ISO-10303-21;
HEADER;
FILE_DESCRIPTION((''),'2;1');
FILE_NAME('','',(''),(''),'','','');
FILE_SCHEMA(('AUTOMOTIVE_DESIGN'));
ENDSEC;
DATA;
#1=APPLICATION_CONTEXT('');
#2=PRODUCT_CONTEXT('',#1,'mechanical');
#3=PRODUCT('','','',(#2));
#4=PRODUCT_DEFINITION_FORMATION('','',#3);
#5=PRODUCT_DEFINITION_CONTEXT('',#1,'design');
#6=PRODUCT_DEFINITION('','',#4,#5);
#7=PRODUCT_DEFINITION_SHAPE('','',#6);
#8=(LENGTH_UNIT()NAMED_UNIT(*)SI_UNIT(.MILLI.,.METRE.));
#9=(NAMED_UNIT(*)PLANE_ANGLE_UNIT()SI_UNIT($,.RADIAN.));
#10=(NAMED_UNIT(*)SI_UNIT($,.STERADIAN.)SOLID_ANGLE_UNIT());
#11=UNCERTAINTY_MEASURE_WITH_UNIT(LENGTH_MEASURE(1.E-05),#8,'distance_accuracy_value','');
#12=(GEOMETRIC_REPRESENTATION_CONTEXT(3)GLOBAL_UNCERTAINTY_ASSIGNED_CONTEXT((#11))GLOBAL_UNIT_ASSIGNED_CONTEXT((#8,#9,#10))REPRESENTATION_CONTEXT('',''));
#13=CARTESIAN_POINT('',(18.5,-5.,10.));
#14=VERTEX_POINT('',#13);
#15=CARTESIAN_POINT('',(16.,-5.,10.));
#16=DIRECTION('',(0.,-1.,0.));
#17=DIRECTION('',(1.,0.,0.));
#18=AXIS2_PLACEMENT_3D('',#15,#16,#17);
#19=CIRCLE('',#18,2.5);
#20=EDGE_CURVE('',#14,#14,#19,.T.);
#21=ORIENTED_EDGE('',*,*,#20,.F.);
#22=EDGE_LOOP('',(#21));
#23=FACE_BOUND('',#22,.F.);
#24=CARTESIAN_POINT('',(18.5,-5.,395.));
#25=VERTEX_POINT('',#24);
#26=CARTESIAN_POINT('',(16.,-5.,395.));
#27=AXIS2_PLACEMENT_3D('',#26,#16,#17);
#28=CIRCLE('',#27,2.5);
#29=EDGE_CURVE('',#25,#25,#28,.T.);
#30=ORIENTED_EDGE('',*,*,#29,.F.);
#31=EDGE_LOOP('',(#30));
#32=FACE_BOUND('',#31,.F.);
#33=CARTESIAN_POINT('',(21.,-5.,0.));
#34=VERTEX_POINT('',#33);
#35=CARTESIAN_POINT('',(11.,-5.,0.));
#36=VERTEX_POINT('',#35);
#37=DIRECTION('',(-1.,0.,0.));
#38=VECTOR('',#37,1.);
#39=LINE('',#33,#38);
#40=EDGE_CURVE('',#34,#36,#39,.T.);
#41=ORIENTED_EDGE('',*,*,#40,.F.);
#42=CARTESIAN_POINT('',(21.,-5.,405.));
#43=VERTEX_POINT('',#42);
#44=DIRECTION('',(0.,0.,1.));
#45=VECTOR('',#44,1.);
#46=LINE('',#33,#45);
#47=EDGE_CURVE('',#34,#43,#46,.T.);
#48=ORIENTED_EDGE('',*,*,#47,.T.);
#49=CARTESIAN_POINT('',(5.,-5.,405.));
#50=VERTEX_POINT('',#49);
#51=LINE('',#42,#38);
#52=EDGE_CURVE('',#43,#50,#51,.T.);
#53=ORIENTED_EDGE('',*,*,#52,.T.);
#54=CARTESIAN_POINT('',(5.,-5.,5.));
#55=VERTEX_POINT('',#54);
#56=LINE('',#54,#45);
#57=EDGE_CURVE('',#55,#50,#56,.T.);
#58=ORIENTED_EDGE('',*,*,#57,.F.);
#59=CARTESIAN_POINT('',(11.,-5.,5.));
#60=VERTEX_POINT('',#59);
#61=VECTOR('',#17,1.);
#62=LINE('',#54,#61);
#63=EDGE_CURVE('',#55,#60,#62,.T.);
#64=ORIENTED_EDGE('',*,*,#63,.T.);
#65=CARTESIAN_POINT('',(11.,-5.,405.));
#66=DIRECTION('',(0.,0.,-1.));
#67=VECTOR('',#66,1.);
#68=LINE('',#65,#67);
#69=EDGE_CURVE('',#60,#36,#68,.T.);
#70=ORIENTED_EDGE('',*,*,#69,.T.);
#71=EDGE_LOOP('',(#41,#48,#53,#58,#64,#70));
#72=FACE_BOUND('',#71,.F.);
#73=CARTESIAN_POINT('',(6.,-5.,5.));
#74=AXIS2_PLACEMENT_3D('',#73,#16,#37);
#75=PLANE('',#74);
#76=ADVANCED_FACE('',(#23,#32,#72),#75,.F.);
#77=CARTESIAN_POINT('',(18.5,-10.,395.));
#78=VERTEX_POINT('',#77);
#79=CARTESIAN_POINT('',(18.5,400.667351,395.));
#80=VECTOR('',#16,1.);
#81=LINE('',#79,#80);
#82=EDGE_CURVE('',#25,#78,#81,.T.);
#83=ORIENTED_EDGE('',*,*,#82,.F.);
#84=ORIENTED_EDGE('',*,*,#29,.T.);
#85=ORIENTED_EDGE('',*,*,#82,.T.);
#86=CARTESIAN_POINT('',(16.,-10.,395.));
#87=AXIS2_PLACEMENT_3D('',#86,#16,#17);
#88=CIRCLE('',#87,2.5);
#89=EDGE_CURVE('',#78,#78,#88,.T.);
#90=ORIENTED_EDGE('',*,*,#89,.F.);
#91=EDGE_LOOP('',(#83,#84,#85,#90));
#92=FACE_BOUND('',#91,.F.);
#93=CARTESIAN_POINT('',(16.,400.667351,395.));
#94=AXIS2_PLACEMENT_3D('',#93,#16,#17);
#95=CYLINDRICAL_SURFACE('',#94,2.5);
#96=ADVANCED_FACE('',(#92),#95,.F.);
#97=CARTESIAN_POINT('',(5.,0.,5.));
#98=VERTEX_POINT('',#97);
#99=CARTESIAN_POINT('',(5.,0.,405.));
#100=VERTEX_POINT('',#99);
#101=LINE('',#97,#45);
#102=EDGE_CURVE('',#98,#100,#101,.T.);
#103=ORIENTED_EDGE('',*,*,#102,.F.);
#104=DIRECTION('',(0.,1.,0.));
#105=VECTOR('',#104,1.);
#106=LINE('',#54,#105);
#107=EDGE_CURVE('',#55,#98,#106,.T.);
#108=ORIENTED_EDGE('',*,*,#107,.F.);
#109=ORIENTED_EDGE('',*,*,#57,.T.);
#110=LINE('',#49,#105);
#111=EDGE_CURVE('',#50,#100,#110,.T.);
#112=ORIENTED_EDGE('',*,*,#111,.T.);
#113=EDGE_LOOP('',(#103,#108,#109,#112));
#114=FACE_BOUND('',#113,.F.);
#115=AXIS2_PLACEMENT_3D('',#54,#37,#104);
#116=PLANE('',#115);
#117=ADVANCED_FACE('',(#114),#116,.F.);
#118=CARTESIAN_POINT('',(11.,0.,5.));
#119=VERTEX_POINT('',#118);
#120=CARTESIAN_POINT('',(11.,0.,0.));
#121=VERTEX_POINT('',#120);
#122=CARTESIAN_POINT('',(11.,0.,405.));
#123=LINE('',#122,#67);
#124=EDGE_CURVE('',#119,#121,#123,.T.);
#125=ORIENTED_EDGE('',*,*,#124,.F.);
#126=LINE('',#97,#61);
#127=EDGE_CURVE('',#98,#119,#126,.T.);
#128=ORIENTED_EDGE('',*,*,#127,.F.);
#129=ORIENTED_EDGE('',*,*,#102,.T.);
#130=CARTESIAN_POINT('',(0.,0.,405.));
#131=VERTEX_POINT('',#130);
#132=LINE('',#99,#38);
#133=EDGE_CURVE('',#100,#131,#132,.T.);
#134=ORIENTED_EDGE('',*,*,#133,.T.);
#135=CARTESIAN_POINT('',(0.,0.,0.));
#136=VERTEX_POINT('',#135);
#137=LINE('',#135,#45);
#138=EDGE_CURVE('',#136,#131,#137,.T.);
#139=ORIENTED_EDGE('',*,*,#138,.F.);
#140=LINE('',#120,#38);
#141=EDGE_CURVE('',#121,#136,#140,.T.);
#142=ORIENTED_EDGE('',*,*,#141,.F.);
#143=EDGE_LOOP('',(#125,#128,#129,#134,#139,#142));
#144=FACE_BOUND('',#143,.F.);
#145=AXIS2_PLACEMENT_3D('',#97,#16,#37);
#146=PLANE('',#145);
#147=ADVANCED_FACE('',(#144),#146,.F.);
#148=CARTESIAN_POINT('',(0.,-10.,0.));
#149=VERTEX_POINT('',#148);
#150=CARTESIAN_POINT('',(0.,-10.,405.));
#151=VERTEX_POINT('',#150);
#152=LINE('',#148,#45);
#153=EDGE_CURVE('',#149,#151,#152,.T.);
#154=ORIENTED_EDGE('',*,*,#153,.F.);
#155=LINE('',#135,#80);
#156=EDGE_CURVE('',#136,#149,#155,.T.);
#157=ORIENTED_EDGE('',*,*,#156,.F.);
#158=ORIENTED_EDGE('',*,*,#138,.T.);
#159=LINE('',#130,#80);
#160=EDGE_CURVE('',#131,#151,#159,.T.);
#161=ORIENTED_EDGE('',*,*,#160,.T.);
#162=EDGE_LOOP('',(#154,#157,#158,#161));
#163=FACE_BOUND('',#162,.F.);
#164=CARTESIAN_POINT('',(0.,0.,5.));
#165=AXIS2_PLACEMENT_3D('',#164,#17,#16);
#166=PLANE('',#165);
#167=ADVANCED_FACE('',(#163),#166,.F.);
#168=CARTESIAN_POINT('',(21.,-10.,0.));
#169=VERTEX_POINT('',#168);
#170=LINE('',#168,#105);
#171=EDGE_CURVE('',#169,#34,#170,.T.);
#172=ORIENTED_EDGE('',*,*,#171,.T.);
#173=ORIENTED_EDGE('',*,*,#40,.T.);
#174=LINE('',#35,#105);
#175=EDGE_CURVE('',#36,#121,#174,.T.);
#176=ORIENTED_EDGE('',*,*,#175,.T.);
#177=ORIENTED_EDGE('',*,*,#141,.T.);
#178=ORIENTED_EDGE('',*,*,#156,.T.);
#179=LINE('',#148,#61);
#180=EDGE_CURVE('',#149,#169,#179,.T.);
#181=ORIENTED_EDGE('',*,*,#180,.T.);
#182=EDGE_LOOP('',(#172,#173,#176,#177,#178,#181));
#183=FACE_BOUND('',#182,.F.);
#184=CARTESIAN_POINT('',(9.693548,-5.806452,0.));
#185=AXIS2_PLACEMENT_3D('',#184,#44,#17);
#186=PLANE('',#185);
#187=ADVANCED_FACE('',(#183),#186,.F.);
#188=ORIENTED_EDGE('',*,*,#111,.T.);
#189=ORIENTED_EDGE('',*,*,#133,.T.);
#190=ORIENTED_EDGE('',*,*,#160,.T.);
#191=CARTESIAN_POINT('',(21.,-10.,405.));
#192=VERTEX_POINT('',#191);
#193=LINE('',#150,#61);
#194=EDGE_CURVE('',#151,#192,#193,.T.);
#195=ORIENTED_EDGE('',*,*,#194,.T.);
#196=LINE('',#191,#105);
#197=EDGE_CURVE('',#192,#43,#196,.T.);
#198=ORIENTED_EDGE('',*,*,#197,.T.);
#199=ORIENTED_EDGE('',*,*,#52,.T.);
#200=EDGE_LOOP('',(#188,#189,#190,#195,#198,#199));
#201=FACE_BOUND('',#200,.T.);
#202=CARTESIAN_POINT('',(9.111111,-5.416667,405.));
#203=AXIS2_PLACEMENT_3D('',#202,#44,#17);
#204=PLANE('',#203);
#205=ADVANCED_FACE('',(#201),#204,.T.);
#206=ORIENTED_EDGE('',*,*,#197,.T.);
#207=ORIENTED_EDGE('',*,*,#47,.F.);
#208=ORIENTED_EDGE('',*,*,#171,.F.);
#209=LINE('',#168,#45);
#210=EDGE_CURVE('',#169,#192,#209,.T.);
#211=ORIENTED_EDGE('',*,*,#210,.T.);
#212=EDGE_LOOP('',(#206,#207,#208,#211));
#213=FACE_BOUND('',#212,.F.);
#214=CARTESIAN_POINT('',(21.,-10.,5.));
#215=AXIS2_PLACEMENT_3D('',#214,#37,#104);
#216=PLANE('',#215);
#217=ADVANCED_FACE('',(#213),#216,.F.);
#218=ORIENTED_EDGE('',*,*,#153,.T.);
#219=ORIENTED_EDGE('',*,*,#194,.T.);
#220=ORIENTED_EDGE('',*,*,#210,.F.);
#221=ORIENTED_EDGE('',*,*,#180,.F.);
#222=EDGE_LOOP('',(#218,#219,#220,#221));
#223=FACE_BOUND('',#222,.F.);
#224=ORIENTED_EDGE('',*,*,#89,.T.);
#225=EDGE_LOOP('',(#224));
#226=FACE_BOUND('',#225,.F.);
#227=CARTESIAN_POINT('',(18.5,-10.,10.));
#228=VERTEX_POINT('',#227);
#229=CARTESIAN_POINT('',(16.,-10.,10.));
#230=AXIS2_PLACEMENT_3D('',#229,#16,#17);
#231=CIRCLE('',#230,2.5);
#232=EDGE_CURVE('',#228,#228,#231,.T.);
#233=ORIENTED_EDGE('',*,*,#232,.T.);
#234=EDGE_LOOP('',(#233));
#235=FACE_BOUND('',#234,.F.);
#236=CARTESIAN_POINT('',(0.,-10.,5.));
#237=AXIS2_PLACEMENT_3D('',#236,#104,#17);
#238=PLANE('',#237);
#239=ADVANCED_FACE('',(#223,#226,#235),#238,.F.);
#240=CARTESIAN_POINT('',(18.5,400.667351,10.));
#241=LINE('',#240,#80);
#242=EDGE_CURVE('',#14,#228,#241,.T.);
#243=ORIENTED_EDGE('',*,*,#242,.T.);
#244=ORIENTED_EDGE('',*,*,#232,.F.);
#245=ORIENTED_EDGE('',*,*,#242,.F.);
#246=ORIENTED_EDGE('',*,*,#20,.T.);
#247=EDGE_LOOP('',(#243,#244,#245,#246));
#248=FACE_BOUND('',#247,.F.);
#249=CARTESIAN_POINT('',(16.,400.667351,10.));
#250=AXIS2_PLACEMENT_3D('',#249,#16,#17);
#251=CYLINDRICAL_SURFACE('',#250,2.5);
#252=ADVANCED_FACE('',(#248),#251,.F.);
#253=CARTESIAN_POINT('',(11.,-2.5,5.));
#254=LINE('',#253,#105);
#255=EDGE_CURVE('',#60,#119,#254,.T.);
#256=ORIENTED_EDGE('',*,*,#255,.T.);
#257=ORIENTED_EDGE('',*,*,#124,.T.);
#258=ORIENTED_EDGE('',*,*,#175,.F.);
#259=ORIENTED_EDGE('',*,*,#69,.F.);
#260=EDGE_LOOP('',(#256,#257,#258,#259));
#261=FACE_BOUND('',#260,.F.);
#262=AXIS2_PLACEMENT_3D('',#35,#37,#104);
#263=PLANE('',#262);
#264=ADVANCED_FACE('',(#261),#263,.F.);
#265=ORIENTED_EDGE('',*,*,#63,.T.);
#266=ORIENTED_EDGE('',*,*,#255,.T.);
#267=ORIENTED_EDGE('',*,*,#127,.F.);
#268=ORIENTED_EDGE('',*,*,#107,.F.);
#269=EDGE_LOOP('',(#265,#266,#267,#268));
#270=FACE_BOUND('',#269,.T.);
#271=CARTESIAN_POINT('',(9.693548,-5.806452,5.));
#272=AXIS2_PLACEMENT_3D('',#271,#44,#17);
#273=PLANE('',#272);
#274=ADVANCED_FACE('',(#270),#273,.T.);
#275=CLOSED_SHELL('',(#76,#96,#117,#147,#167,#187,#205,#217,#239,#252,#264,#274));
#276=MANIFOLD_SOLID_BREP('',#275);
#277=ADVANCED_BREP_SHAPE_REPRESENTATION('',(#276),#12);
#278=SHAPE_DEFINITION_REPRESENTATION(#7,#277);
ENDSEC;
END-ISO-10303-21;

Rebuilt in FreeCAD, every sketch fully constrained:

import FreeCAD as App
import Part
import Sketcher


def add_polygon(sketch, points):
    """Adds a closed chain of lines whose ends are joined by coincident constraints."""
    first, n = sketch.GeometryCount, len(points)
    for a, b in zip(points, points[1:] + points[:1]):
        sketch.addGeometry(Part.LineSegment(App.Vector(*a, 0), App.Vector(*b, 0)), False)
    for i in range(n):
        sketch.addConstraint(Sketcher.Constraint("Coincident", first + i, 2, first + (i + 1) % n, 1))

doc = App.newDocument("Part")
params = doc.addObject("Spreadsheet::Sheet", "Params")
for row, (alias, value) in enumerate([
    ("sketch1_width", "21 mm"),
    ("sketch1_width2", "10 mm"),
    ("pad1_length", "5 mm"),
    ("sketch2_width", "5 mm"),
    ("sketch2_width2", "21 mm"),
    ("pad2_length", "400 mm"),
    ("sketch3_diameter", "5 mm"),
    ("hole_diameter", "5 mm"),
    ("sketch4_diameter", "5 mm"),
    ("hole2_diameter", "5 mm"),
    ("sketch5_width", "5 mm"),
    ("pocket1_length", "400 mm"),
], start=1):
    params.set(f"A{row}", alias)
    params.set(f"B{row}", "=" + value)
    params.setAlias(f"B{row}", alias)

body = doc.addObject("PartDesign::Body", "Body")

sketch1 = doc.addObject("Sketcher::SketchObject", "Sketch")
body.addObject(sketch1)
sketch1.AttachmentSupport = (doc.XY_Plane, [""])
sketch1.MapMode = "FlatFace"
add_polygon(sketch1, [(0, 0), (0, -10), (21, -10), (21, -5), (11, -5), (11, 0)])
sketch1.addConstraint(Sketcher.Constraint("Vertical", 0))
sketch1.addConstraint(Sketcher.Constraint("Horizontal", 1))
sketch1.addConstraint(Sketcher.Constraint("Vertical", 2))
sketch1.addConstraint(Sketcher.Constraint("Horizontal", 3))
sketch1.addConstraint(Sketcher.Constraint("Vertical", 4))
sketch1.addConstraint(Sketcher.Constraint("Horizontal", 5))
sketch1.addConstraint(Sketcher.Constraint("Coincident", 5, 2, -1, 1))
sketch1.addConstraint(Sketcher.Constraint("Equal", 3, 0))
sketch1.addConstraint(Sketcher.Constraint("Equal", 2, 4))
sketch1.addConstraint(Sketcher.Constraint("DistanceX", 1, 1, 1, 2, 21.0))
sketch1.addConstraint(Sketcher.Constraint("DistanceX", 3, 2, 3, 1, 10.0))
sketch1.setExpression("Constraints[15]", "Params.sketch1_width")
sketch1.setExpression("Constraints[16]", "Params.sketch1_width2")
pad1 = doc.addObject("PartDesign::Pad", "Pad")
body.addObject(pad1)
pad1.Profile = sketch1
pad1.setExpression("Length", "Params.pad1_length")

sketch2 = doc.addObject("Sketcher::SketchObject", "Sketch001")
body.addObject(sketch2)
sketch2.AttachmentSupport = (doc.XY_Plane, [""])
sketch2.MapMode = "FlatFace"
sketch2.AttachmentOffset = App.Placement(App.Vector(0, 0, 5), App.Rotation())
add_polygon(sketch2, [(5, 0), (0, 0), (0, -10), (21, -10), (21, -5), (11, -5), (11, 0), (6, 0), (6, -5), (5, -5)])
sketch2.addConstraint(Sketcher.Constraint("Horizontal", 0))
sketch2.addConstraint(Sketcher.Constraint("Vertical", 1))
sketch2.addConstraint(Sketcher.Constraint("Horizontal", 2))
sketch2.addConstraint(Sketcher.Constraint("Vertical", 3))
sketch2.addConstraint(Sketcher.Constraint("Horizontal", 4))
sketch2.addConstraint(Sketcher.Constraint("Vertical", 5))
sketch2.addConstraint(Sketcher.Constraint("Horizontal", 6))
sketch2.addConstraint(Sketcher.Constraint("Vertical", 7))
sketch2.addConstraint(Sketcher.Constraint("Horizontal", 8))
sketch2.addConstraint(Sketcher.Constraint("Vertical", 9))
sketch2.addConstraint(Sketcher.Constraint("Coincident", 0, 2, -1, 1))
sketch2.addConstraint(Sketcher.Constraint("PointOnObject", 5, 2, -1))
sketch2.addConstraint(Sketcher.Constraint("Horizontal", 4, 2, 7, 2))
sketch2.addConstraint(Sketcher.Constraint("Equal", 0, 6))
sketch2.addConstraint(Sketcher.Constraint("Equal", 4, 1))
sketch2.addConstraint(Sketcher.Constraint("Equal", 6, 3))
sketch2.addConstraint(Sketcher.Constraint("Equal", 3, 5))
sketch2.addConstraint(Sketcher.Constraint("DistanceX", 0, 2, 0, 1, 5.0))
sketch2.addConstraint(Sketcher.Constraint("DistanceX", 2, 1, 2, 2, 21.0))
sketch2.setExpression("Constraints[27]", "Params.sketch2_width")
sketch2.setExpression("Constraints[28]", "Params.sketch2_width2")
pad2 = doc.addObject("PartDesign::Pad", "Pad001")
body.addObject(pad2)
pad2.Profile = sketch2
pad2.setExpression("Length", "Params.pad2_length")

sketch3 = doc.addObject("Sketcher::SketchObject", "Sketch002")
body.addObject(sketch3)
sketch3.AttachmentSupport = (doc.XZ_Plane, [""])
sketch3.MapMode = "FlatFace"
sketch3.AttachmentOffset = App.Placement(App.Vector(0, 0, 5), App.Rotation())
sketch3.addGeometry(Part.Circle(App.Vector(16, 10, 0), App.Vector(0, 0, 1), 2.5), False)
sketch3.addConstraint(Sketcher.Constraint("Diameter", 0, 5.0))
sketch3.addConstraint(Sketcher.Constraint("DistanceX", -1, 1, 0, 3, 16.0))
sketch3.addConstraint(Sketcher.Constraint("DistanceY", -1, 1, 0, 3, 10.0))
sketch3.setExpression("Constraints[0]", "Params.sketch3_diameter")
doc.recompute()
hole = doc.addObject("PartDesign::Hole", "Hole")
body.addObject(hole)
hole.Profile = sketch3
hole.ThreadType = "None"
hole.setExpression("Diameter", "Params.hole_diameter")
hole.DepthType = "ThroughAll"
hole.Reversed = True

sketch4 = doc.addObject("Sketcher::SketchObject", "Sketch003")
body.addObject(sketch4)
sketch4.AttachmentSupport = (doc.XZ_Plane, [""])
sketch4.MapMode = "FlatFace"
sketch4.AttachmentOffset = App.Placement(App.Vector(0, 0, 5), App.Rotation())
sketch4.addGeometry(Part.Circle(App.Vector(16, 395, 0), App.Vector(0, 0, 1), 2.5), False)
sketch4.addConstraint(Sketcher.Constraint("Diameter", 0, 5.0))
sketch4.addConstraint(Sketcher.Constraint("DistanceX", -1, 1, 0, 3, 16.0))
sketch4.addConstraint(Sketcher.Constraint("DistanceY", -1, 1, 0, 3, 395.0))
sketch4.setExpression("Constraints[0]", "Params.sketch4_diameter")
doc.recompute()
hole2 = doc.addObject("PartDesign::Hole", "Hole001")
body.addObject(hole2)
hole2.Profile = sketch4
hole2.ThreadType = "None"
hole2.setExpression("Diameter", "Params.hole2_diameter")
hole2.DepthType = "ThroughAll"
hole2.Reversed = True

sketch5 = doc.addObject("Sketcher::SketchObject", "Sketch004")
body.addObject(sketch5)
sketch5.AttachmentSupport = (doc.XY_Plane, [""])
sketch5.MapMode = "FlatFace"
sketch5.AttachmentOffset = App.Placement(App.Vector(0, 0, 405), App.Rotation())
add_polygon(sketch5, [(6, 0), (6, -5), (11, -5), (11, 0)])
sketch5.addConstraint(Sketcher.Constraint("Vertical", 0))
sketch5.addConstraint(Sketcher.Constraint("Horizontal", 1))
sketch5.addConstraint(Sketcher.Constraint("Vertical", 2))
sketch5.addConstraint(Sketcher.Constraint("Horizontal", 3))
sketch5.addConstraint(Sketcher.Constraint("PointOnObject", 2, 2, -1))
sketch5.addConstraint(Sketcher.Constraint("Equal", 3, 0))
sketch5.addConstraint(Sketcher.Constraint("DistanceX", 1, 1, 1, 2, 5.0))
sketch5.addConstraint(Sketcher.Constraint("DistanceX", -1, 1, 0, 2, 6.0))
sketch5.setExpression("Constraints[10]", "Params.sketch5_width")
pocket1 = doc.addObject("PartDesign::Pocket", "Pocket")
body.addObject(pocket1)
pocket1.Profile = sketch5
pocket1.setExpression("Length", "Params.pocket1_length")

doc.recompute()
